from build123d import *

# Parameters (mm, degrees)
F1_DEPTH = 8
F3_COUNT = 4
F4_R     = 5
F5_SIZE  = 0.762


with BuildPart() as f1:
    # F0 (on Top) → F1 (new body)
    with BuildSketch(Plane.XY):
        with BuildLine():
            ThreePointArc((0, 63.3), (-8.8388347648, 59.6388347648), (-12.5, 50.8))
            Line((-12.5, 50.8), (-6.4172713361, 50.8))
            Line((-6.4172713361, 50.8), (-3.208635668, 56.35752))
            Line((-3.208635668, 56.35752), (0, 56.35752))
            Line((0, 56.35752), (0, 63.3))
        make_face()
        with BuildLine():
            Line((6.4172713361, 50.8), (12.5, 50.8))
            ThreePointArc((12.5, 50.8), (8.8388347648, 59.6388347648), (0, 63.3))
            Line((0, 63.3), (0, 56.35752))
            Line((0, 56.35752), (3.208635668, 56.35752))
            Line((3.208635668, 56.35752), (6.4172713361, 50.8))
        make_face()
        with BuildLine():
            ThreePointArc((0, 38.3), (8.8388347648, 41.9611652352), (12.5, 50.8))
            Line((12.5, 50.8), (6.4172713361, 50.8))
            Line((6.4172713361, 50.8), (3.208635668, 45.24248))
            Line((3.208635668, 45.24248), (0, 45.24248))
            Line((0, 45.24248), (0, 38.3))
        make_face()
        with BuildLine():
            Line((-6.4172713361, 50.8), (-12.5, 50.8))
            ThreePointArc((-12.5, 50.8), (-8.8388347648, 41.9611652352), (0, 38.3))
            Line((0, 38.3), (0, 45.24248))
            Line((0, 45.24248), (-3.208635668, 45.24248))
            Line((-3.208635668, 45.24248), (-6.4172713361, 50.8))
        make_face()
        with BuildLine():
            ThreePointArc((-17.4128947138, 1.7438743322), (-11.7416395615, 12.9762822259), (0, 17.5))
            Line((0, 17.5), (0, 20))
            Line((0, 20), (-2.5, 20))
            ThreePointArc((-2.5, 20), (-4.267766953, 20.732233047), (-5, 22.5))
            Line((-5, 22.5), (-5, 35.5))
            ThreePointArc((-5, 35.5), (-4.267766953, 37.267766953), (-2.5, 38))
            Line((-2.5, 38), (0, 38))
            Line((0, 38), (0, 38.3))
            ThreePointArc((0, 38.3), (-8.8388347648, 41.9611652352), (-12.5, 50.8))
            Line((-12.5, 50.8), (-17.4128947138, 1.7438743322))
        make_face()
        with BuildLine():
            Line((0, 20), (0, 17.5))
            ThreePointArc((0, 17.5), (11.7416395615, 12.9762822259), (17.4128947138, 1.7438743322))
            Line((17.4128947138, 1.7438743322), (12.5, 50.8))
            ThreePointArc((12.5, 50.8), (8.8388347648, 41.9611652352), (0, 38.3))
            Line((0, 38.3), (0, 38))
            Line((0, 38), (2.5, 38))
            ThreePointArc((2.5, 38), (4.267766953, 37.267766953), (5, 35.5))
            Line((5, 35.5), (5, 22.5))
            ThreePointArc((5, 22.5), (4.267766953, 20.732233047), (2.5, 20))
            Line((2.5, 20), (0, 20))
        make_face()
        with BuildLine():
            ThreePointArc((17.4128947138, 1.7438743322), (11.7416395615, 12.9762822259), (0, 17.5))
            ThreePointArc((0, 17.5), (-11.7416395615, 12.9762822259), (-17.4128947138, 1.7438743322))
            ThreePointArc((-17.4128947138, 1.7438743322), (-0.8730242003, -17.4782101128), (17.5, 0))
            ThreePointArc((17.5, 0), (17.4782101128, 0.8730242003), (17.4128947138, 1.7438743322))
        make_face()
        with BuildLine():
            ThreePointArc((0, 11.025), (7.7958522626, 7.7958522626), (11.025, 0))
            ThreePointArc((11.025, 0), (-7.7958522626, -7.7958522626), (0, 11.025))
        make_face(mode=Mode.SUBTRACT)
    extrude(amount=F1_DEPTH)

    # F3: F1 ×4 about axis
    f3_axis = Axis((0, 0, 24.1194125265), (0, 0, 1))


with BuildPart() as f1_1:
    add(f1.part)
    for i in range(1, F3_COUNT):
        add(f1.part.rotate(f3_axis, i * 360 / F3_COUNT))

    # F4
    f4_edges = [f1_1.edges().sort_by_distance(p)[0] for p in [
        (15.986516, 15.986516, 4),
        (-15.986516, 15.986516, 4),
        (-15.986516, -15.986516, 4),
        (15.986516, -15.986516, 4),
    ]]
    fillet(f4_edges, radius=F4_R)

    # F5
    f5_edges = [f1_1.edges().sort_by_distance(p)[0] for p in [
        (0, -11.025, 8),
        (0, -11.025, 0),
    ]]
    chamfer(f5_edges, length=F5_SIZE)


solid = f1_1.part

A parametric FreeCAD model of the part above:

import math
import FreeCAD as App
import Part
import Sketcher
from FreeCAD import Vector
Q = App.Units.Quantity


def edges_at(feature, points):
    """Names of the edges that pass closest to the given points."""
    edges = feature.Shape.Edges
    near = lambda p: min(range(len(edges)), key=lambda i: edges[i].distToShape(Part.Vertex(*p))[0])
    return sorted({f"Edge{near(p) + 1}" for p in points})

doc = App.newDocument("Part")
body = doc.addObject("PartDesign::Body", "Body")

# Sketch on XY plane
sketch1 = body.newObject("Sketcher::SketchObject", "Sketch")
sketch1.AttachmentSupport = (doc.getObject("XY_Plane"), [""])
sketch1.MapMode = "FlatFace"
sketch1.addGeometry([
    Part.ArcOfCircle(Part.Circle(Vector(0, 50.8, 0), Vector(0, 0, 1), 12.5), math.radians(90), math.radians(180)),  # 0
    Part.LineSegment(Vector(-12.5, 50.8, 0), Vector(-17.412895, 1.743874, 0)),  # 1
    Part.ArcOfCircle(Part.Circle(Vector(0, 0, 0), Vector(0, 0, 1), 17.5), math.radians(174.280986), math.radians(360)),  # 2
    Part.ArcOfCircle(Part.Circle(Vector(0, 0, 0), Vector(0, 0, 1), 17.5), math.radians(0), math.radians(5.719014)),  # 3
    Part.LineSegment(Vector(17.412895, 1.743874, 0), Vector(12.5, 50.8, 0)),  # 4
    Part.ArcOfCircle(Part.Circle(Vector(0, 50.8, 0), Vector(0, 0, 1), 12.5), math.radians(0), math.radians(90)),  # 5
    Part.ArcOfCircle(Part.Circle(Vector(0, 0, 0), Vector(0, 0, 1), 11.025), math.radians(90), math.radians(360)),  # 6
    Part.ArcOfCircle(Part.Circle(Vector(0, 0, 0), Vector(0, 0, 1), 11.025), math.radians(0), math.radians(90)),  # 7
    Part.ArcOfCircle(Part.Circle(Vector(-2.5, 22.5, 0), Vector(0, 0, 1), 2.5), math.radians(180), math.radians(270)),  # 8
    Part.LineSegment(Vector(-5, 22.5, 0), Vector(-5, 35.5, 0)),  # 9
    Part.ArcOfCircle(Part.Circle(Vector(-2.5, 35.5, 0), Vector(0, 0, 1), 2.5), math.radians(90), math.radians(180)),  # 10
    Part.LineSegment(Vector(-2.5, 38, 0), Vector(2.5, 38, 0)),  # 11
    Part.ArcOfCircle(Part.Circle(Vector(2.5, 35.5, 0), Vector(0, 0, 1), 2.5), math.radians(0), math.radians(90)),  # 12
    Part.LineSegment(Vector(5, 35.5, 0), Vector(5, 22.5, 0)),  # 13
    Part.ArcOfCircle(Part.Circle(Vector(2.5, 22.5, 0), Vector(0, 0, 1), 2.5), math.radians(-90), math.radians(0)),  # 14
    Part.LineSegment(Vector(2.5, 20, 0), Vector(-2.5, 20, 0)),  # 15
    Part.LineSegment(Vector(-6.417271, 50.8, 0), Vector(-3.208636, 56.35752, 0)),  # 16
    Part.LineSegment(Vector(-3.208636, 56.35752, 0), Vector(3.208636, 56.35752, 0)),  # 17
    Part.LineSegment(Vector(3.208636, 56.35752, 0), Vector(6.417271, 50.8, 0)),  # 18
    Part.LineSegment(Vector(6.417271, 50.8, 0), Vector(3.208636, 45.24248, 0)),  # 19
    Part.LineSegment(Vector(3.208636, 45.24248, 0), Vector(-3.208636, 45.24248, 0)),  # 20
    Part.LineSegment(Vector(-3.208636, 45.24248, 0), Vector(-6.417271, 50.8, 0)),  # 21
], False)
sketch1.addConstraint([
    Sketcher.Constraint("Coincident", 0, 2, 1, 1),
    Sketcher.Constraint("Tangent", 1, 2, 2, 1),
    Sketcher.Constraint("Tangent", 2, 2, 3, 1),
    Sketcher.Constraint("Tangent", 3, 2, 4, 1),
    Sketcher.Constraint("Coincident", 4, 2, 5, 1),
    Sketcher.Constraint("Tangent", 5, 2, 0, 1),
    Sketcher.Constraint("Tangent", 6, 1, 7, 2),
    Sketcher.Constraint("Coincident", 7, 1, 6, 2),
    Sketcher.Constraint("Tangent", 8, 1, 9, 1),
    Sketcher.Constraint("Tangent", 9, 2, 10, 2),
    Sketcher.Constraint("Tangent", 10, 1, 11, 1),
    Sketcher.Constraint("Tangent", 11, 2, 12, 2),
    Sketcher.Constraint("Tangent", 12, 1, 13, 1),
    Sketcher.Constraint("Tangent", 13, 2, 14, 2),
    Sketcher.Constraint("Tangent", 14, 1, 15, 1),
    Sketcher.Constraint("Tangent", 15, 2, 8, 2),
    Sketcher.Constraint("Coincident", 16, 2, 17, 1),
    Sketcher.Constraint("Coincident", 17, 2, 18, 1),
    Sketcher.Constraint("Coincident", 18, 2, 19, 1),
    Sketcher.Constraint("Coincident", 19, 2, 20, 1),
    Sketcher.Constraint("Coincident", 20, 2, 21, 1),
    Sketcher.Constraint("Coincident", 21, 2, 16, 1),
    Sketcher.Constraint("Vertical", 9),
    Sketcher.Constraint("Horizontal", 11),
    Sketcher.Constraint("Vertical", 13),
    Sketcher.Constraint("Horizontal", 15),
    Sketcher.Constraint("Horizontal", 17),
    Sketcher.Constraint("Horizontal", 20),
    Sketcher.Constraint("Coincident", 2, 3, -1, 1),
    Sketcher.Constraint("Coincident", 6, 3, -1, 1),
    Sketcher.Constraint("Equal", 2, 3),
    Sketcher.Constraint("Equal", 0, 5),
    Sketcher.Constraint("Equal", 8, 10),
    Sketcher.Constraint("Equal", 10, 12),
    Sketcher.Constraint("Equal", 12, 14),
    Sketcher.Constraint("Symmetric", 0, 2, 4, 2, -2),
    Sketcher.Constraint("Symmetric", 18, 2, 21, 2, -2),
    Sketcher.Constraint("PointOnObject", 2, 2, -1),
    Sketcher.Constraint("PointOnObject", 5, 2, -2),
    Sketcher.Constraint("PointOnObject", 6, 1, -2),
    Sketcher.Constraint("PointOnObject", 7, 1, -1),
    Sketcher.Constraint("Parallel", 16, 19),
    Sketcher.Constraint("Parallel", 18, 21),
    Sketcher.Constraint("Horizontal", 5, 3, 0, 2),
    Sketcher.Constraint("Horizontal", 4, 2, 18, 2),
    Sketcher.Constraint("Vertical", 17, 2, 19, 2),
    Sketcher.Constraint("Vertical", 16, 2, 20, 2),
    Sketcher.Constraint("Radius", 0, 12.5),
    Sketcher.Constraint("Radius", 2, 17.5),
    Sketcher.Constraint("Radius", 8, 2.5),
    Sketcher.Constraint("DistanceX", 11, 1, 11, 2, 5.0),
    Sketcher.Constraint("DistanceY", 9, 1, 9, 2, 13.0),
    Sketcher.Constraint("Angle", 16, Q("60 deg")),
    Sketcher.Constraint("DistanceX", 8, 1, -1, 1, 5.0),
    Sketcher.Constraint("DistanceY", -1, 1, 10, 1, 38.0),
    Sketcher.Constraint("Radius", 6, 11.025),
    Sketcher.Constraint("DistanceY", -1, 1, 0, 3, 50.8),
    Sketcher.Constraint("DistanceX", 17, 1, 17, 2, 6.417271),
    Sketcher.Constraint("Distance", 16, 6.417271),
])
pad1 = body.newObject("PartDesign::Pad", "Pad")
pad1.Profile = sketch1
pad1.Length = 8
body2 = doc.addObject("PartDesign::Body", "Body001")
doc.recompute()

body2.BaseFeature = body
doc.recompute()

body3 = doc.addObject("PartDesign::Body", "Body002")
body3.BaseFeature = body
body3.Placement = App.Placement(Vector(0, 0, 0), App.Rotation(Vector(0, 0, 1), 90))
boolean = body2.newObject("PartDesign::Boolean", "Boolean")
boolean.Type = "Fuse"
boolean.addObjects([body3])
doc.recompute()

body4 = doc.addObject("PartDesign::Body", "Body003")
body4.BaseFeature = body
body4.Placement = App.Placement(Vector(0, 0, 0), App.Rotation(Vector(0, 0, 1), 180))
boolean2 = body2.newObject("PartDesign::Boolean", "Boolean001")
boolean2.Type = "Fuse"
boolean2.addObjects([body4])
doc.recompute()

body.Placement = App.Placement(Vector(0, 0, 0), App.Rotation(Vector(0, 0, 1), 270))
boolean3 = body2.newObject("PartDesign::Boolean", "Boolean002")
boolean3.Type = "Fuse"
boolean3.addObjects([body])
doc.recompute()

fillet = body2.newObject("PartDesign::Fillet", "Fillet")
fillet.Base = (boolean3, edges_at(boolean3, [
    (15.987, 15.987, 4),
    (-15.987, 15.987, 4),
    (-15.987, -15.987, 4),
    (15.987, -15.987, 4),
]))
fillet.Radius = 5
doc.recompute()

chamfer = body2.newObject("PartDesign::Chamfer", "Chamfer")
chamfer.Base = (fillet, edges_at(fillet, [(7.796, -7.796, 8), (7.796, -7.796, 0)]))
chamfer.Size = 0.762

doc.recompute()
